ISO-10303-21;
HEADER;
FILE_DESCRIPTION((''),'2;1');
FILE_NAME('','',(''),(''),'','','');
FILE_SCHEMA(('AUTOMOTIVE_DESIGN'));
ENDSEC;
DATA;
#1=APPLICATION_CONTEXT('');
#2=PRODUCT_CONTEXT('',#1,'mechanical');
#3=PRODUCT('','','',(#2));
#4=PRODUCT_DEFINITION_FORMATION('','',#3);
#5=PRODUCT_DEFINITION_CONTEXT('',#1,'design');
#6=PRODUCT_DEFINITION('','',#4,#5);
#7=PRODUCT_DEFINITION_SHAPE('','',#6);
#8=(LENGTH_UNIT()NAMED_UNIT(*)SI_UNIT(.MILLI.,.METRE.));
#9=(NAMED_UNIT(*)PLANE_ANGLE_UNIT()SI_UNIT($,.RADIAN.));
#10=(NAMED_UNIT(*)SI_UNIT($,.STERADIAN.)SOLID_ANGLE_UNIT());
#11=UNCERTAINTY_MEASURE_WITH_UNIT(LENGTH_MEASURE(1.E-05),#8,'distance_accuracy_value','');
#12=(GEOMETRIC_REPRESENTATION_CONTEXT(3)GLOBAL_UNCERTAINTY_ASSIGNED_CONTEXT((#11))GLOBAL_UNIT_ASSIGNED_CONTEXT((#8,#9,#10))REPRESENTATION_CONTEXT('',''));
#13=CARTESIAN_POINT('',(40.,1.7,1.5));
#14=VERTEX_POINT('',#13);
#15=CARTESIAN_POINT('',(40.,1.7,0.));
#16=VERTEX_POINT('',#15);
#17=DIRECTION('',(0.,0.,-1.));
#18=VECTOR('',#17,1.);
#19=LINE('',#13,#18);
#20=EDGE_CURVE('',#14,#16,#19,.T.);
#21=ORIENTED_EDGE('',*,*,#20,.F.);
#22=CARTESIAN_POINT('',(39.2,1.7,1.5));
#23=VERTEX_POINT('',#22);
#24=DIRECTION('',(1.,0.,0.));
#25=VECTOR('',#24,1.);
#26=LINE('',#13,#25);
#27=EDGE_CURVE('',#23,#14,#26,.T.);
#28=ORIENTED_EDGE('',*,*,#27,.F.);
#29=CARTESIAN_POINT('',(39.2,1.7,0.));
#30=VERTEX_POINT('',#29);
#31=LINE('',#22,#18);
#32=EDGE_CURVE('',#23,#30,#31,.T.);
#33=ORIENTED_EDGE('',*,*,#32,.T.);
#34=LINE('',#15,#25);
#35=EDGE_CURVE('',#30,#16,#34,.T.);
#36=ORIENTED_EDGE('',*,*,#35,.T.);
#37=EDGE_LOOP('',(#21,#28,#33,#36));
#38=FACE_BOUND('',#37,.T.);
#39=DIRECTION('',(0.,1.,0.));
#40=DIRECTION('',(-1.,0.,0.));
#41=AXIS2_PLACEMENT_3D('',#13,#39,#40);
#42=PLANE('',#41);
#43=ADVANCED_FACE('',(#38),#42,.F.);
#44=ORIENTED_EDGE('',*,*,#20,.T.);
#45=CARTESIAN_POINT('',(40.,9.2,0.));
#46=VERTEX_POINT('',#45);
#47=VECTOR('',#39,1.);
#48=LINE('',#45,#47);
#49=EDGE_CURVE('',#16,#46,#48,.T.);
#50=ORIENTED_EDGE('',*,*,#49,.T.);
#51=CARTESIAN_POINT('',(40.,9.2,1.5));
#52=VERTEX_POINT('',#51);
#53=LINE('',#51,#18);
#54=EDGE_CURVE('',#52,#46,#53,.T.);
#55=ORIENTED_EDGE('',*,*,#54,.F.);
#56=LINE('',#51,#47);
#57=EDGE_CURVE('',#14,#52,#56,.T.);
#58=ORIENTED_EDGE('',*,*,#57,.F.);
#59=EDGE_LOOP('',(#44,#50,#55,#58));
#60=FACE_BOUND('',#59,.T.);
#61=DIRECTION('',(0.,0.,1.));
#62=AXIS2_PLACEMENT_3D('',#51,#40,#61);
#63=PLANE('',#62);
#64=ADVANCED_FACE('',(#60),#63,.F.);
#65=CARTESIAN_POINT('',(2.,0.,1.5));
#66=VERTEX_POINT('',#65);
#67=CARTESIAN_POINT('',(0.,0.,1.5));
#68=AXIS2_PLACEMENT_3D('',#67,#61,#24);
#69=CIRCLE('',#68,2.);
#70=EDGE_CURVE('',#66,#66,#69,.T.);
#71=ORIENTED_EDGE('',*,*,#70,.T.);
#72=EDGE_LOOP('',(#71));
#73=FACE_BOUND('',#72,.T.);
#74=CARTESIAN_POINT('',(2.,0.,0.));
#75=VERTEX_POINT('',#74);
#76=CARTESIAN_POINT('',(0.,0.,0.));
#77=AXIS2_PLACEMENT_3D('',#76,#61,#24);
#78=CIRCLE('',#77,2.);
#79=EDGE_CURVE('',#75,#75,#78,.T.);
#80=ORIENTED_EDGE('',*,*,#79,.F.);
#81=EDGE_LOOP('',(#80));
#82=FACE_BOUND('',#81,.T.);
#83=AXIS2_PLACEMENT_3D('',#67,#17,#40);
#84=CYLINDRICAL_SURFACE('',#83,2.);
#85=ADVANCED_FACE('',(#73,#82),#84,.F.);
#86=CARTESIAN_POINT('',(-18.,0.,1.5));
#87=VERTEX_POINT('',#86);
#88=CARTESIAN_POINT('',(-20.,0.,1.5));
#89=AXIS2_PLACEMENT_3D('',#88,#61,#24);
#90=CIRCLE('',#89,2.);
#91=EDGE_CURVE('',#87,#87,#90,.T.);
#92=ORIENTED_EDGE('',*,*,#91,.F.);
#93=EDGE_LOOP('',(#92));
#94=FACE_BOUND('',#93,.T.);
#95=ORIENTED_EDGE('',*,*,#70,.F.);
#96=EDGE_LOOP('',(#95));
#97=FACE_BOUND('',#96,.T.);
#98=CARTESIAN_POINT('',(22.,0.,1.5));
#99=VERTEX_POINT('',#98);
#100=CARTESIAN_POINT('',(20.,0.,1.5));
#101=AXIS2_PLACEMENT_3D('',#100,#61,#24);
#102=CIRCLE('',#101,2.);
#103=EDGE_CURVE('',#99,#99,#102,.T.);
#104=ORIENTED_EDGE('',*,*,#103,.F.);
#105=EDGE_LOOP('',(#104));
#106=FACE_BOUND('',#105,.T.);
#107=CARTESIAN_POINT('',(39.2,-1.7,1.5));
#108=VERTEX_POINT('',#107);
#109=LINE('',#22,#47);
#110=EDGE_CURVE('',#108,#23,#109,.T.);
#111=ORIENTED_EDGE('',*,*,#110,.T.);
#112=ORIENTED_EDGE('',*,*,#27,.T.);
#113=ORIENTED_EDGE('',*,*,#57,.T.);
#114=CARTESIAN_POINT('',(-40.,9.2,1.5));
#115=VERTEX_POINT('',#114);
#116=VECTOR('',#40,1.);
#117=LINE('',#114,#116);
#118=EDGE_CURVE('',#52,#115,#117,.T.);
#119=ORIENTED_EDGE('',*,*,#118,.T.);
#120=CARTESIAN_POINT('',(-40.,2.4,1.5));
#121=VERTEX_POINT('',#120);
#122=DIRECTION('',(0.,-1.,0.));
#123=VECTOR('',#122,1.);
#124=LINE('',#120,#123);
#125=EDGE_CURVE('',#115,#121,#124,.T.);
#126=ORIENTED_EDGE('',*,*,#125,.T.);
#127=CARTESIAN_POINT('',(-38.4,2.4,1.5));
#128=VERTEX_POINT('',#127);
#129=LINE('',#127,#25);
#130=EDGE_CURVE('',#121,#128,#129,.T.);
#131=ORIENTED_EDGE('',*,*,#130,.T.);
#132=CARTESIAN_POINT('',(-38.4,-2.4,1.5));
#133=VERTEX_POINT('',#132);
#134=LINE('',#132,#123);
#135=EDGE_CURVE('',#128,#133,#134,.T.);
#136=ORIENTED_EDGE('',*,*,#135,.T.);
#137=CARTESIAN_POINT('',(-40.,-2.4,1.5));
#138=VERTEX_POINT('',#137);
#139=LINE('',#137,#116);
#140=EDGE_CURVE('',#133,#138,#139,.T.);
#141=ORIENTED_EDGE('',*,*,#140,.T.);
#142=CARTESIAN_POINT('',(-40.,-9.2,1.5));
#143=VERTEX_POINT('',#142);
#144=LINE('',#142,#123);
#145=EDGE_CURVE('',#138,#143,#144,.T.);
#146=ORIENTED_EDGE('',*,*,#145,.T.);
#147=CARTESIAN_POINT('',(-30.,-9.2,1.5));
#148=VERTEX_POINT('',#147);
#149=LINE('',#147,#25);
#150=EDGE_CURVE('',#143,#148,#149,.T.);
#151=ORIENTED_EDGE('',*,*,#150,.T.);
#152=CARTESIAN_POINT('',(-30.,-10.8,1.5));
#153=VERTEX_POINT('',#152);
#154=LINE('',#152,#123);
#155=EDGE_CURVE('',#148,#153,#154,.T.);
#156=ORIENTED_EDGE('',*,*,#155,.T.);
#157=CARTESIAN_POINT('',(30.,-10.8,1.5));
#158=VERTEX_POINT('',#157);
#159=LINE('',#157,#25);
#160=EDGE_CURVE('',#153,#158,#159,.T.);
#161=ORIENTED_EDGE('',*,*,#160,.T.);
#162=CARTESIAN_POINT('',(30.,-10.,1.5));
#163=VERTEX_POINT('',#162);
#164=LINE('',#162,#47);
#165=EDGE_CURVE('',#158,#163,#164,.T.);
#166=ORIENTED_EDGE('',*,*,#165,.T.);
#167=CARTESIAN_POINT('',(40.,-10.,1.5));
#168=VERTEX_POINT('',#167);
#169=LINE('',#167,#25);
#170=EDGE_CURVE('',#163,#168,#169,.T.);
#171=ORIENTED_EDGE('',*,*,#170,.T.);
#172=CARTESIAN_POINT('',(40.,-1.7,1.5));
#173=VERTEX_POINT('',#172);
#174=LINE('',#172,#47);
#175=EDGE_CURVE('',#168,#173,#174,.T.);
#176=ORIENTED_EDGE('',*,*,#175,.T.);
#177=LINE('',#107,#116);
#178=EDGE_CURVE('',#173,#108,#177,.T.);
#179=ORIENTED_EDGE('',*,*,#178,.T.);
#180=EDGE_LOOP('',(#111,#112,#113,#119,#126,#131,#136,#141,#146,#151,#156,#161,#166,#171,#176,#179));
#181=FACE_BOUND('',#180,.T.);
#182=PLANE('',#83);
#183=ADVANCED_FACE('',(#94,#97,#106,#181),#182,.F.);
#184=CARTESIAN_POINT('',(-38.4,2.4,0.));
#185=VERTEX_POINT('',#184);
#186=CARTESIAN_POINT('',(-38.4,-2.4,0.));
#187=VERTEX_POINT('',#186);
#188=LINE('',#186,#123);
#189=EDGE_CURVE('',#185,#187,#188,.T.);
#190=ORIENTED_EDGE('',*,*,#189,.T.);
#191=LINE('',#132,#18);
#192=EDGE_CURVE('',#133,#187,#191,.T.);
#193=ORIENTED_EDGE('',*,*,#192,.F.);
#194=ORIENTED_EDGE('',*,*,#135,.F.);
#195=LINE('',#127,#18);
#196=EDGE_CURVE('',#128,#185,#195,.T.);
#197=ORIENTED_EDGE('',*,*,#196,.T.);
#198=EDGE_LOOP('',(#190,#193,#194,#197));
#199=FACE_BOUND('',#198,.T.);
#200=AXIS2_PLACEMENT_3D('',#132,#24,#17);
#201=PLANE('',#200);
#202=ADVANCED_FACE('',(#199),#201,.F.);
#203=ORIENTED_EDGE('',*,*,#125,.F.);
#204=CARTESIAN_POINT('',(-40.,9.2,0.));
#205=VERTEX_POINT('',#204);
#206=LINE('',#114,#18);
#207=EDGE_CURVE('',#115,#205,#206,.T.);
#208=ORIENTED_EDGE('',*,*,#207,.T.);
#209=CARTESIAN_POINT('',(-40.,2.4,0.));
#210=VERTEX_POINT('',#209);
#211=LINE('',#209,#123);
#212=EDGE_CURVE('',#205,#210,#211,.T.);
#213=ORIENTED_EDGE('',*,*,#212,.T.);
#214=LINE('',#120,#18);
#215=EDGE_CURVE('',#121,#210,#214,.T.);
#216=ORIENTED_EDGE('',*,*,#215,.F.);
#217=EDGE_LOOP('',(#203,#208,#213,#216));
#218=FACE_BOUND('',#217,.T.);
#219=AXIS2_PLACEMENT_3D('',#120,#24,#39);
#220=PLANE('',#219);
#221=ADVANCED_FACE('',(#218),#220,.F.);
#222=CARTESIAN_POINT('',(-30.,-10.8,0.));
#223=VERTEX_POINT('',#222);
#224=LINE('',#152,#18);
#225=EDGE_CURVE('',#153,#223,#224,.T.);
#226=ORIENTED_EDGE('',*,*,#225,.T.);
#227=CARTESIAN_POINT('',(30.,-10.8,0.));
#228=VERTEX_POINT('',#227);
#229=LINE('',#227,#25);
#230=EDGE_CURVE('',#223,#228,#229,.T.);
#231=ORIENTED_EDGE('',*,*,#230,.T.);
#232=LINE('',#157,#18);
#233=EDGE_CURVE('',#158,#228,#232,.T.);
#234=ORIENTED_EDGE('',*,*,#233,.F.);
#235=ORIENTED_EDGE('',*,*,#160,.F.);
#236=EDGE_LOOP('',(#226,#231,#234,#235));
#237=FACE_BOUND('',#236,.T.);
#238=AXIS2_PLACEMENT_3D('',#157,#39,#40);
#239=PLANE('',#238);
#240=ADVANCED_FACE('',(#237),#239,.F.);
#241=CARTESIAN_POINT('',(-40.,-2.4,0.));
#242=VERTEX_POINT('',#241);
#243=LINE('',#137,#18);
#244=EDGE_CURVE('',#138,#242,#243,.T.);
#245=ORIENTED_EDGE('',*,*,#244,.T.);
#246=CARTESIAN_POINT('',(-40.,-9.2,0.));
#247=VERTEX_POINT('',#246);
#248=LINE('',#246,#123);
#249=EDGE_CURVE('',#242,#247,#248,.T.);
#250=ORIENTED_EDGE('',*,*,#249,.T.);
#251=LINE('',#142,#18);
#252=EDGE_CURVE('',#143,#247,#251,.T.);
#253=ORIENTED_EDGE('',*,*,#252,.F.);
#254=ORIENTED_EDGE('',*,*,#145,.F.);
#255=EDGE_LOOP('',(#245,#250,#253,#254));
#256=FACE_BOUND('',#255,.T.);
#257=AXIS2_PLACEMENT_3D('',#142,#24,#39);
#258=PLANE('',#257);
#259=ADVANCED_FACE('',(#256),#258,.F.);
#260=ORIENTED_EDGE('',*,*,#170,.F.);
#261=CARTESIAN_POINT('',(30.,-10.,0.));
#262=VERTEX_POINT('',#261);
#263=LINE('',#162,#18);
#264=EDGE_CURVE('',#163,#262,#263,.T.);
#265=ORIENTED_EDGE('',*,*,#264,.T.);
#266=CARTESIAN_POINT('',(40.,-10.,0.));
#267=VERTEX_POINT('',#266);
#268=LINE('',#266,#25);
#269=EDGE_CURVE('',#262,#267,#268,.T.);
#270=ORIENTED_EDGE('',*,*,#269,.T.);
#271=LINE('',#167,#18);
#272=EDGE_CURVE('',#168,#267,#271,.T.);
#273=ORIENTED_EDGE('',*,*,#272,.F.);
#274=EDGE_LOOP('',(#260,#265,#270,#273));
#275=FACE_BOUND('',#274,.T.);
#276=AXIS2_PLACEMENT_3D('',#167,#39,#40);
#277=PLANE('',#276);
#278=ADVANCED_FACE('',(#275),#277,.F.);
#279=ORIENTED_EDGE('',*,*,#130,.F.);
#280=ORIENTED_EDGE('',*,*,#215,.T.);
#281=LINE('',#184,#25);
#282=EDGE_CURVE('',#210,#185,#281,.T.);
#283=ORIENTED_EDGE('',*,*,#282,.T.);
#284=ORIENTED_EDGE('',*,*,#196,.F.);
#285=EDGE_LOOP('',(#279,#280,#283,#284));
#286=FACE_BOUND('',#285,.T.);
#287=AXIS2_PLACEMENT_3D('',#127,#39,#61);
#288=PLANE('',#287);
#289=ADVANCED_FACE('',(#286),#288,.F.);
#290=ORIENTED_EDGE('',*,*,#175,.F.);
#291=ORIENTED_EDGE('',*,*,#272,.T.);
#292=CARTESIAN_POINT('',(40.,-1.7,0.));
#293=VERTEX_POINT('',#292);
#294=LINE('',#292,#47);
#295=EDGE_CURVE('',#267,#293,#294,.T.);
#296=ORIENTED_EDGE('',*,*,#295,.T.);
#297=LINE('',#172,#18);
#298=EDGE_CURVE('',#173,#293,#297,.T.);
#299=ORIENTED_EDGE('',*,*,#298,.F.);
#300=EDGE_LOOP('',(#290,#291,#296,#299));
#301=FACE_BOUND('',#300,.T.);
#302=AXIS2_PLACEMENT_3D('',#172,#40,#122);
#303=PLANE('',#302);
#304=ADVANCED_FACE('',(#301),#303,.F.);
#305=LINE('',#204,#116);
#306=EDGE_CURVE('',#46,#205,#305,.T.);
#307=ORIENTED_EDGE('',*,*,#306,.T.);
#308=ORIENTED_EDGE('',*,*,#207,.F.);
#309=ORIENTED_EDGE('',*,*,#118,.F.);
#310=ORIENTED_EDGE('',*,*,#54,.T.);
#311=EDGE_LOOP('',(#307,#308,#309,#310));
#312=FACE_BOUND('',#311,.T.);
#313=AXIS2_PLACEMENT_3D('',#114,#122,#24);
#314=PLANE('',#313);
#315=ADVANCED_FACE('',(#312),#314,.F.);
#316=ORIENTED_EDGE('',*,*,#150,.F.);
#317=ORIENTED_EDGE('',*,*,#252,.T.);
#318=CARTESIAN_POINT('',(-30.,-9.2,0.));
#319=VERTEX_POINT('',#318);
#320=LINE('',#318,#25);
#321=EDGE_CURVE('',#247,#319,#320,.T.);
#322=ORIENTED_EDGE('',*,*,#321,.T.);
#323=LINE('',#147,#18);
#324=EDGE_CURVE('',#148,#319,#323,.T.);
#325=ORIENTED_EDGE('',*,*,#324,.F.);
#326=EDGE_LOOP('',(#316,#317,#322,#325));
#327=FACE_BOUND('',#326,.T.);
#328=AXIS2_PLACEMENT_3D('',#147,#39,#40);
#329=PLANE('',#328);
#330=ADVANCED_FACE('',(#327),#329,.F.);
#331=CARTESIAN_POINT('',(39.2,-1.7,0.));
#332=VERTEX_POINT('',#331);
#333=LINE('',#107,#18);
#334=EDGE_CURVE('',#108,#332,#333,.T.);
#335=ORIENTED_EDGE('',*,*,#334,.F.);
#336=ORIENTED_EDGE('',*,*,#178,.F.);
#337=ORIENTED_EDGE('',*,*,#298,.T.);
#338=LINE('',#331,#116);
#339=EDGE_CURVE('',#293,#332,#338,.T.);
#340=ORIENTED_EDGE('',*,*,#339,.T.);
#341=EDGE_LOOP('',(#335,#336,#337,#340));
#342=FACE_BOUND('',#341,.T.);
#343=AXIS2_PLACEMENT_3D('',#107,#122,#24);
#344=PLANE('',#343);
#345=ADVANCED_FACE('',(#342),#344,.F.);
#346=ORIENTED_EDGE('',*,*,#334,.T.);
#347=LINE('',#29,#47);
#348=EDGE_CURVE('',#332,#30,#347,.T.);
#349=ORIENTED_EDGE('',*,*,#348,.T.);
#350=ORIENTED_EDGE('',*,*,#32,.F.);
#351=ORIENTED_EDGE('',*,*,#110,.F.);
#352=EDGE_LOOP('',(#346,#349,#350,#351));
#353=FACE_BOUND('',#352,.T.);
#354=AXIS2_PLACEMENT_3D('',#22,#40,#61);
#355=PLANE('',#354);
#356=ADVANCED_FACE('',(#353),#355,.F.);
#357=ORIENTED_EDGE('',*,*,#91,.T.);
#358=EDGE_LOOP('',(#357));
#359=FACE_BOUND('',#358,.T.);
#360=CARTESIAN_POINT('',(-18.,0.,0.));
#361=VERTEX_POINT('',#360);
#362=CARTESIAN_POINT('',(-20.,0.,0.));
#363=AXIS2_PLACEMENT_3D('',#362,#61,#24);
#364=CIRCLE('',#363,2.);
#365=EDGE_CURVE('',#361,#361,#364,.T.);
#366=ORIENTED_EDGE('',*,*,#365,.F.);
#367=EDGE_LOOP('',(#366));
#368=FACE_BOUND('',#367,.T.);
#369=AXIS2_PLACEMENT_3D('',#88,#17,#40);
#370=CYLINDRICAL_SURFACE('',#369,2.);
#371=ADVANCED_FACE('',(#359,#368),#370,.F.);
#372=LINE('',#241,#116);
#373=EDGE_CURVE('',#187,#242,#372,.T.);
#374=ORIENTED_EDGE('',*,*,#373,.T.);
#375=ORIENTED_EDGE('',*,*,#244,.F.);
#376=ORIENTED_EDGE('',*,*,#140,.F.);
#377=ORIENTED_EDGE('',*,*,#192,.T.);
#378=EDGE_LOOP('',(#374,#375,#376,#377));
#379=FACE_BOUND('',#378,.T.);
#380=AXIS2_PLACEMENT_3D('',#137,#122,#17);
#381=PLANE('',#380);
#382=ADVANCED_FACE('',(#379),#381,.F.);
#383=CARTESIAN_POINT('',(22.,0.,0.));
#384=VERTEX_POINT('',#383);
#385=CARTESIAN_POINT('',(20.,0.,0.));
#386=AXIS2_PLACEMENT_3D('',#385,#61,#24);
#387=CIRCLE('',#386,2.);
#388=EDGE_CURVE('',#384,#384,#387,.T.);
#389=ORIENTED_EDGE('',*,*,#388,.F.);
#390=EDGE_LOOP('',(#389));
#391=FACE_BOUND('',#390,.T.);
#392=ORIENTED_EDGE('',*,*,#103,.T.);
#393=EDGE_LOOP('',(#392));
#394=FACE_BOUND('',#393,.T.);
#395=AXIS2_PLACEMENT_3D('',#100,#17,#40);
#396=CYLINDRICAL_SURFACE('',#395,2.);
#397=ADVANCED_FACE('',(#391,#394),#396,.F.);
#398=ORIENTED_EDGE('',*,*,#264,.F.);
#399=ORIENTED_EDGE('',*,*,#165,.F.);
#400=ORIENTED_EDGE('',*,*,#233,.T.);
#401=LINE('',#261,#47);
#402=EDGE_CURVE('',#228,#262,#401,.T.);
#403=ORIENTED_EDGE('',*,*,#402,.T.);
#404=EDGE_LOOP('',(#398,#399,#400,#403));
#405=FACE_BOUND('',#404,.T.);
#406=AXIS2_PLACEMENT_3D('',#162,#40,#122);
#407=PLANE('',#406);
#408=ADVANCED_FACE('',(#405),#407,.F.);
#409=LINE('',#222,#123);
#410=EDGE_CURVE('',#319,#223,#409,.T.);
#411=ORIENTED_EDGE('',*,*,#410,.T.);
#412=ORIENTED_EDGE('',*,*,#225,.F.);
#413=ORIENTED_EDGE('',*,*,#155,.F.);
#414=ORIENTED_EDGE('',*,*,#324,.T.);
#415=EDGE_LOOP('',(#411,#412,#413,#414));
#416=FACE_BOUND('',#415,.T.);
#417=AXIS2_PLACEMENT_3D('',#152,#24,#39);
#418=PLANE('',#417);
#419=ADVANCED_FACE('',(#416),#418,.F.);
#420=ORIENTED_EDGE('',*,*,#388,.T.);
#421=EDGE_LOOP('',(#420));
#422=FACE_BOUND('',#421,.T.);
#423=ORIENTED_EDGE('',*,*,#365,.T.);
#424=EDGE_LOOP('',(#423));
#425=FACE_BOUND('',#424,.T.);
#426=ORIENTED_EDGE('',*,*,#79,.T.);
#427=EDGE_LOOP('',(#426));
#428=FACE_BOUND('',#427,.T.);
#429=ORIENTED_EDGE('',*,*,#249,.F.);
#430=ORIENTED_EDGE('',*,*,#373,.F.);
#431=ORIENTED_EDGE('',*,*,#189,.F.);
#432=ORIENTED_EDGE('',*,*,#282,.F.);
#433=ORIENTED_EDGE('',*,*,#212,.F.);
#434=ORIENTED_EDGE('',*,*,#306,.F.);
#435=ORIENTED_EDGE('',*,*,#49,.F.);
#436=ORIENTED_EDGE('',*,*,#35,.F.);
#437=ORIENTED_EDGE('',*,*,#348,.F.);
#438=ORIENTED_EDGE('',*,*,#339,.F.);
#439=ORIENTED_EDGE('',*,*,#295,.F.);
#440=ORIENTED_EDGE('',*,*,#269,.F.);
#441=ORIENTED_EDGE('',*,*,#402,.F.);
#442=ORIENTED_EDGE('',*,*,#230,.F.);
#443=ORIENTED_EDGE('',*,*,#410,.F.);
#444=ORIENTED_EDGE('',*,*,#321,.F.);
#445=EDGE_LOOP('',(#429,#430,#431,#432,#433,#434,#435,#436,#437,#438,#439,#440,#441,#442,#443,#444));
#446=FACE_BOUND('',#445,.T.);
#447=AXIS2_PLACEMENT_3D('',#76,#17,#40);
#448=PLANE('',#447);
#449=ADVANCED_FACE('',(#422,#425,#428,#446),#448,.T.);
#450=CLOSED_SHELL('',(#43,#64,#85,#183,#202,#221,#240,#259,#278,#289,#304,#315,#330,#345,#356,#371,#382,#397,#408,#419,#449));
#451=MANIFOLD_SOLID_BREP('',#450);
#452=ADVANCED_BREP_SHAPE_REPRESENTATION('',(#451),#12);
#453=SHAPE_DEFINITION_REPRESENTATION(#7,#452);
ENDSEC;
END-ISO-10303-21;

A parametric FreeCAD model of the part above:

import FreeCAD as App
import Part
import Sketcher

V = App.Vector


def add_polygon(sketch, points):
    """Adds a closed chain of lines whose ends are joined by coincident constraints."""
    first, n = sketch.GeometryCount, len(points)
    for a, b in zip(points, points[1:] + points[:1]):
        sketch.addGeometry(Part.LineSegment(App.Vector(*a, 0), App.Vector(*b, 0)), False)
    for i in range(n):
        sketch.addConstraint(Sketcher.Constraint("Coincident", first + i, 2, first + (i + 1) % n, 1))

doc = App.newDocument("Part")
body = doc.addObject("PartDesign::Body", "Body")

sketch1 = body.newObject("Sketcher::SketchObject", "Sketch")
sketch1.AttachmentSupport = (doc.getObject("XY_Plane"), [""])
sketch1.MapMode = "FlatFace"
add_polygon(sketch1, [(40, 9.2), (-40, 9.2), (-40, 2.4), (-38.4, 2.4), (-38.4, -2.4), (-40, -2.4), (-40, -9.2), (-30, -9.2), (-30, -10.8), (30, -10.8), (30, -10), (40, -10), (40, -1.7), (39.2, -1.7), (39.2, 1.7), (40, 1.7)])
sketch1.addGeometry(Part.Circle(V(20, 0, 0), V(0, 0, 1), 2), False)
sketch1.addGeometry(Part.Circle(V(0, 0, 0), V(0, 0, 1), 2), False)
sketch1.addGeometry(Part.Circle(V(-20, 0, 0), V(0, 0, 1), 2), False)
sketch1.addConstraint([
    Sketcher.Constraint("Horizontal", 0),
    Sketcher.Constraint("Vertical", 1),
    Sketcher.Constraint("Horizontal", 2),
    Sketcher.Constraint("Vertical", 3),
    Sketcher.Constraint("Horizontal", 4),
    Sketcher.Constraint("Vertical", 5),
    Sketcher.Constraint("Horizontal", 6),
    Sketcher.Constraint("Vertical", 7),
    Sketcher.Constraint("Horizontal", 8),
    Sketcher.Constraint("Vertical", 9),
    Sketcher.Constraint("Horizontal", 10),
    Sketcher.Constraint("Vertical", 11),
    Sketcher.Constraint("Horizontal", 12),
    Sketcher.Constraint("Vertical", 13),
    Sketcher.Constraint("Horizontal", 14),
    Sketcher.Constraint("Vertical", 15),
    Sketcher.Constraint("Coincident", 17, 3, -1, 1),
    Sketcher.Constraint("Equal", 16, 17),
    Sketcher.Constraint("Equal", 17, 18),
    Sketcher.Constraint("Symmetric", 16, 3, 18, 3, -1, 1),
    Sketcher.Constraint("Symmetric", 5, 2, 15, 2, -1, 1),
    Sketcher.Constraint("Symmetric", 1, 2, 4, 2, -1),
    Sketcher.Constraint("Symmetric", 11, 2, 14, 2, -1),
    Sketcher.Constraint("PointOnObject", 16, 3, -1),
    Sketcher.Constraint("Equal", 6, 10),
    Sketcher.Constraint("Equal", 4, 7),
    Sketcher.Constraint("Equal", 14, 9),
    Sketcher.Constraint("Diameter", 16, 4.0),
    Sketcher.Constraint("DistanceX", 0, 2, 0, 1, 80.0),
    Sketcher.Constraint("DistanceX", 6, 1, 6, 2, 10.0),
    Sketcher.Constraint("DistanceX", 2, 1, 2, 2, 1.6),
    Sketcher.Constraint("DistanceX", 12, 2, 12, 1, 0.8),
    Sketcher.Constraint("DistanceY", 1, 2, 1, 1, 6.8),
    Sketcher.Constraint("DistanceY", 3, 2, 3, 1, 4.8),
    Sketcher.Constraint("DistanceY", 11, 1, 11, 2, 8.3),
    Sketcher.Constraint("DistanceX", -1, 1, 16, 3, 20.0),
])
pad1 = body.newObject("PartDesign::Pad", "Pad")
pad1.Profile = sketch1
pad1.Length = 1.5

doc.recompute()
